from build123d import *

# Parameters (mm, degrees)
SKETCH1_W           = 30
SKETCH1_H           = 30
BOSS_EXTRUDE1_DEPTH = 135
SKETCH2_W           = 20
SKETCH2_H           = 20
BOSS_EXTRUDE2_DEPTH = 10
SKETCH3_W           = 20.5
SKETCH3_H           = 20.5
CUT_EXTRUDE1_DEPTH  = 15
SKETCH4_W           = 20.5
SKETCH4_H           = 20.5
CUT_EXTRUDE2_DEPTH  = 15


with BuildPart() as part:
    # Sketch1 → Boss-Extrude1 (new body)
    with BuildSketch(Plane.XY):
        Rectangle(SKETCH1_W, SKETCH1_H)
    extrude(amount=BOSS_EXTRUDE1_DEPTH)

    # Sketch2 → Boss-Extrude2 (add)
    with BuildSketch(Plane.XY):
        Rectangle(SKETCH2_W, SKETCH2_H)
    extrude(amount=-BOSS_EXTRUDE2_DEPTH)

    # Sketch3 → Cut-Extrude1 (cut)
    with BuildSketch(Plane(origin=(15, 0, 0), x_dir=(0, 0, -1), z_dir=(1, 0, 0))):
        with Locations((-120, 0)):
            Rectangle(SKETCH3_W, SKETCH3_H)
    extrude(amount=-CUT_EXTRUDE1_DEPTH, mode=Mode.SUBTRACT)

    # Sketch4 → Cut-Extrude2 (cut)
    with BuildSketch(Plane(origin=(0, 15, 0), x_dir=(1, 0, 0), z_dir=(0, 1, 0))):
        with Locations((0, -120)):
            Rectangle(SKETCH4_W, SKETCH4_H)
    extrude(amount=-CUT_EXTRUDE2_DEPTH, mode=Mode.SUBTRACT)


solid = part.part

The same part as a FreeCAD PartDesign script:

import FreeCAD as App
import Part
import Sketcher

V = App.Vector
Q = App.Units.Quantity

doc = App.newDocument("Part")
params = doc.addObject("Spreadsheet::Sheet", "Params")
for row, (alias, value) in enumerate([
    ("sketch1_width", "30 mm"),
    ("pad1_length", "135 mm"),
    ("sketch2_width", "20 mm"),
    ("pad2_length", "10 mm"),
    ("sketch3_width", "20.5 mm"),
    ("pocket1_length", "15 mm"),
    ("sketch4_width", "20.5 mm"),
    ("pocket2_length", "15 mm"),
], start=1):
    params.set(f"A{row}", alias)
    params.set(f"B{row}", "=" + value)
    params.setAlias(f"B{row}", alias)

body = doc.addObject("PartDesign::Body", "Body")

sketch1 = body.newObject("Sketcher::SketchObject", "Sketch")
sketch1.AttachmentSupport = (doc.getObject("XY_Plane"), [""])
sketch1.MapMode = "FlatFace"
sketch1.addGeometry(Part.LineSegment(V(-15, 15, 0), V(-15, -15, 0)), False)
sketch1.addGeometry(Part.LineSegment(V(-15, -15, 0), V(15, -15, 0)), False)
sketch1.addGeometry(Part.LineSegment(V(15, -15, 0), V(15, 15, 0)), False)
sketch1.addGeometry(Part.LineSegment(V(15, 15, 0), V(-15, 15, 0)), False)
sketch1.addConstraint(Sketcher.Constraint("Coincident", 0, 2, 1, 1))
sketch1.addConstraint(Sketcher.Constraint("Coincident", 1, 2, 2, 1))
sketch1.addConstraint(Sketcher.Constraint("Coincident", 2, 2, 3, 1))
sketch1.addConstraint(Sketcher.Constraint("Coincident", 3, 2, 0, 1))
sketch1.addConstraint(Sketcher.Constraint("Vertical", 0))
sketch1.addConstraint(Sketcher.Constraint("Horizontal", 1))
sketch1.addConstraint(Sketcher.Constraint("Vertical", 2))
sketch1.addConstraint(Sketcher.Constraint("Horizontal", 3))
sketch1.addConstraint(Sketcher.Constraint("Symmetric", 0, 2, 2, 2, -1, 1))
sketch1.addConstraint(Sketcher.Constraint("Equal", 3, 0))
sketch1.addConstraint(Sketcher.Constraint("DistanceX", 1, 1, 1, 2, Q("30 mm")))
sketch1.setExpression("Constraints[10]", "Params.sketch1_width")
pad1 = body.newObject("PartDesign::Pad", "Pad")
pad1.Profile = sketch1
pad1.setExpression("Length", "Params.pad1_length")

sketch2 = body.newObject("Sketcher::SketchObject", "Sketch001")
sketch2.AttachmentSupport = (doc.getObject("XY_Plane"), [""])
sketch2.MapMode = "FlatFace"
sketch2.addGeometry(Part.LineSegment(V(-10, 10, 0), V(-10, -10, 0)), False)
sketch2.addGeometry(Part.LineSegment(V(-10, -10, 0), V(10, -10, 0)), False)
sketch2.addGeometry(Part.LineSegment(V(10, -10, 0), V(10, 10, 0)), False)
sketch2.addGeometry(Part.LineSegment(V(10, 10, 0), V(-10, 10, 0)), False)
sketch2.addConstraint(Sketcher.Constraint("Coincident", 0, 2, 1, 1))
sketch2.addConstraint(Sketcher.Constraint("Coincident", 1, 2, 2, 1))
sketch2.addConstraint(Sketcher.Constraint("Coincident", 2, 2, 3, 1))
sketch2.addConstraint(Sketcher.Constraint("Coincident", 3, 2, 0, 1))
sketch2.addConstraint(Sketcher.Constraint("Vertical", 0))
sketch2.addConstraint(Sketcher.Constraint("Horizontal", 1))
sketch2.addConstraint(Sketcher.Constraint("Vertical", 2))
sketch2.addConstraint(Sketcher.Constraint("Horizontal", 3))
sketch2.addConstraint(Sketcher.Constraint("Symmetric", 0, 2, 2, 2, -1, 1))
sketch2.addConstraint(Sketcher.Constraint("Equal", 3, 0))
sketch2.addConstraint(Sketcher.Constraint("DistanceX", 1, 1, 1, 2, Q("20 mm")))
sketch2.setExpression("Constraints[10]", "Params.sketch2_width")
pad2 = body.newObject("PartDesign::Pad", "Pad001")
pad2.Profile = sketch2
pad2.setExpression("Length", "Params.pad2_length")
pad2.Reversed = True

sketch3 = body.newObject("Sketcher::SketchObject", "Sketch002")
sketch3.AttachmentSupport = (doc.getObject("YZ_Plane"), [""])
sketch3.MapMode = "FlatFace"
sketch3.AttachmentOffset = App.Placement(V(0, 0, 15), App.Rotation())
sketch3.addGeometry(Part.LineSegment(V(10.25, 130.25, 0), V(-10.25, 130.25, 0)), False)
sketch3.addGeometry(Part.LineSegment(V(-10.25, 130.25, 0), V(-10.25, 109.75, 0)), False)
sketch3.addGeometry(Part.LineSegment(V(-10.25, 109.75, 0), V(10.25, 109.75, 0)), False)
sketch3.addGeometry(Part.LineSegment(V(10.25, 109.75, 0), V(10.25, 130.25, 0)), False)
sketch3.addConstraint(Sketcher.Constraint("Coincident", 0, 2, 1, 1))
sketch3.addConstraint(Sketcher.Constraint("Coincident", 1, 2, 2, 1))
sketch3.addConstraint(Sketcher.Constraint("Coincident", 2, 2, 3, 1))
sketch3.addConstraint(Sketcher.Constraint("Coincident", 3, 2, 0, 1))
sketch3.addConstraint(Sketcher.Constraint("Horizontal", 0))
sketch3.addConstraint(Sketcher.Constraint("Vertical", 1))
sketch3.addConstraint(Sketcher.Constraint("Horizontal", 2))
sketch3.addConstraint(Sketcher.Constraint("Vertical", 3))
sketch3.addConstraint(Sketcher.Constraint("Equal", 2, 1))
sketch3.addConstraint(Sketcher.Constraint("DistanceX", 0, 2, 0, 1, Q("20.5 mm")))
sketch3.addConstraint(Sketcher.Constraint("DistanceX", 0, 2, -1, 1, Q("10.25 mm")))
sketch3.addConstraint(Sketcher.Constraint("DistanceY", -1, 1, 0, 2, Q("130.25 mm")))
sketch3.setExpression("Constraints[9]", "Params.sketch3_width")
pocket1 = body.newObject("PartDesign::Pocket", "Pocket")
pocket1.Profile = sketch3
pocket1.setExpression("Length", "Params.pocket1_length")

sketch4 = body.newObject("Sketcher::SketchObject", "Sketch003")
sketch4.AttachmentSupport = (doc.getObject("XZ_Plane"), [""])
sketch4.MapMode = "FlatFace"
sketch4.AttachmentOffset = App.Placement(V(0, 0, -15), App.Rotation())
sketch4.addGeometry(Part.LineSegment(V(-10.25, 109.75, 0), V(-10.25, 130.25, 0)), False)
sketch4.addGeometry(Part.LineSegment(V(-10.25, 130.25, 0), V(10.25, 130.25, 0)), False)
sketch4.addGeometry(Part.LineSegment(V(10.25, 130.25, 0), V(10.25, 109.75, 0)), False)
sketch4.addGeometry(Part.LineSegment(V(10.25, 109.75, 0), V(-10.25, 109.75, 0)), False)
sketch4.addConstraint(Sketcher.Constraint("Coincident", 0, 2, 1, 1))
sketch4.addConstraint(Sketcher.Constraint("Coincident", 1, 2, 2, 1))
sketch4.addConstraint(Sketcher.Constraint("Coincident", 2, 2, 3, 1))
sketch4.addConstraint(Sketcher.Constraint("Coincident", 3, 2, 0, 1))
sketch4.addConstraint(Sketcher.Constraint("Vertical", 0))
sketch4.addConstraint(Sketcher.Constraint("Horizontal", 1))
sketch4.addConstraint(Sketcher.Constraint("Vertical", 2))
sketch4.addConstraint(Sketcher.Constraint("Horizontal", 3))
sketch4.addConstraint(Sketcher.Constraint("Equal", 3, 0))
sketch4.addConstraint(Sketcher.Constraint("DistanceX", 1, 1, 1, 2, Q("20.5 mm")))
sketch4.addConstraint(Sketcher.Constraint("DistanceX", 0, 2, -1, 1, Q("10.25 mm")))
sketch4.addConstraint(Sketcher.Constraint("DistanceY", -1, 1, 0, 2, Q("130.25 mm")))
sketch4.setExpression("Constraints[9]", "Params.sketch4_width")
pocket2 = body.newObject("PartDesign::Pocket", "Pocket001")
pocket2.Profile = sketch4
pocket2.setExpression("Length", "Params.pocket2_length")
pocket2.Reversed = True

doc.recompute()
